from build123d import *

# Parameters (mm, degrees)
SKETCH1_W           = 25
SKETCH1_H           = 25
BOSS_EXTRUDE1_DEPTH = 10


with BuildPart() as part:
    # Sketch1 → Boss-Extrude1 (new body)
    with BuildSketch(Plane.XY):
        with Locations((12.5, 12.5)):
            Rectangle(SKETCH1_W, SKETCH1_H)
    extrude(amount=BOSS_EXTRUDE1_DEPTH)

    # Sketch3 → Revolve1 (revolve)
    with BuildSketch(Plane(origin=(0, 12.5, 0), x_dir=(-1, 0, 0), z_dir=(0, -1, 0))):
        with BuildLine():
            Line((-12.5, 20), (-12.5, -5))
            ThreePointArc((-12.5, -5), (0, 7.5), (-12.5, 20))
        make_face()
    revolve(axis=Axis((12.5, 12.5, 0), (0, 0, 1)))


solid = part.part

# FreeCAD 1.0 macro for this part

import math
import FreeCAD as App
import Part
import Sketcher

V = App.Vector


def add_polygon(sketch, points):
    """Adds a closed chain of lines whose ends are joined by coincident constraints."""
    first, n = sketch.GeometryCount, len(points)
    for a, b in zip(points, points[1:] + points[:1]):
        sketch.addGeometry(Part.LineSegment(App.Vector(*a, 0), App.Vector(*b, 0)), False)
    for i in range(n):
        sketch.addConstraint(Sketcher.Constraint("Coincident", first + i, 2, first + (i + 1) % n, 1))

doc = App.newDocument("Part")
params = doc.addObject("Spreadsheet::Sheet", "Params")
for row, (alias, value) in enumerate([
    ("sketch1_width", "25 mm"),
    ("pad1_length", "10 mm"),
    ("sketch2_radius", "12.5 mm"),
    ("revolution_angle", "360 deg"),
], start=1):
    params.set(f"A{row}", alias)
    params.set(f"B{row}", "=" + value)
    params.setAlias(f"B{row}", alias)

body = doc.addObject("PartDesign::Body", "Body")

# Sketch on XY plane
sketch1 = body.newObject("Sketcher::SketchObject", "Sketch")
sketch1.AttachmentSupport = (doc.getObject("XY_Plane"), [""])
sketch1.MapMode = "FlatFace"
add_polygon(sketch1, [(0, 25), (0, 0), (25, 0), (25, 25)])  # lines 0-3
sketch1.addConstraint(Sketcher.Constraint("Vertical", 0))
sketch1.addConstraint(Sketcher.Constraint("Horizontal", 1))
sketch1.addConstraint(Sketcher.Constraint("Vertical", 2))
sketch1.addConstraint(Sketcher.Constraint("Horizontal", 3))
sketch1.addConstraint(Sketcher.Constraint("Coincident", 0, 2, -1, 1))
sketch1.addConstraint(Sketcher.Constraint("Equal", 3, 0))
sketch1.addConstraint(Sketcher.Constraint("DistanceX", 1, 1, 1, 2, 25.0))
sketch1.setExpression("Constraints[10]", "Params.sketch1_width")
pad1 = body.newObject("PartDesign::Pad", "Pad")
pad1.Profile = sketch1
pad1.setExpression("Length", "Params.pad1_length")

# Sketch on XZ plane
sketch2 = body.newObject("Sketcher::SketchObject", "Sketch001")
sketch2.AttachmentSupport = (doc.getObject("XZ_Plane"), [""])
sketch2.MapMode = "FlatFace"
sketch2.AttachmentOffset = App.Placement(V(0, 0, -12.5), App.Rotation())
sketch2.addGeometry(Part.LineSegment(V(12.5, -20, 0), V(12.5, 5, 0)), False)
sketch2.addGeometry(Part.ArcOfCircle(Part.Circle(V(12.5, -7.5, 0), V(0, 0, 1), 12.5), math.radians(90), math.radians(270)), False)
sketch2.addGeometry(Part.LineSegment(V(12.5, -20, 0), V(12.5, 5, 0)), True)  # axis
sketch2.addConstraint(Sketcher.Constraint("Coincident", 0, 1, 1, 2))
sketch2.addConstraint(Sketcher.Constraint("Coincident", 1, 1, 0, 2))
sketch2.addConstraint(Sketcher.Constraint("Vertical", 0))
sketch2.addConstraint(Sketcher.Constraint("Vertical", 2))
sketch2.addConstraint(Sketcher.Constraint("Coincident", 2, 1, 0, 1))
sketch2.addConstraint(Sketcher.Constraint("Vertical", 1, 3, 0, 1))
sketch2.addConstraint(Sketcher.Constraint("Equal", 0, 2))
sketch2.addConstraint(Sketcher.Constraint("Radius", 1, 12.5))
sketch2.addConstraint(Sketcher.Constraint("DistanceY", 0, 1, -1, 1, 20.0))
sketch2.addConstraint(Sketcher.Constraint("DistanceX", -1, 1, 1, 3, 12.5))
sketch2.setExpression("Constraints[7]", "Params.sketch2_radius")
revolution = body.newObject("PartDesign::Revolution", "Revolution")
revolution.Profile = sketch2
revolution.ReferenceAxis = (sketch2, ["Axis0"])
revolution.setExpression("Angle", "Params.revolution_angle")

doc.recompute()
